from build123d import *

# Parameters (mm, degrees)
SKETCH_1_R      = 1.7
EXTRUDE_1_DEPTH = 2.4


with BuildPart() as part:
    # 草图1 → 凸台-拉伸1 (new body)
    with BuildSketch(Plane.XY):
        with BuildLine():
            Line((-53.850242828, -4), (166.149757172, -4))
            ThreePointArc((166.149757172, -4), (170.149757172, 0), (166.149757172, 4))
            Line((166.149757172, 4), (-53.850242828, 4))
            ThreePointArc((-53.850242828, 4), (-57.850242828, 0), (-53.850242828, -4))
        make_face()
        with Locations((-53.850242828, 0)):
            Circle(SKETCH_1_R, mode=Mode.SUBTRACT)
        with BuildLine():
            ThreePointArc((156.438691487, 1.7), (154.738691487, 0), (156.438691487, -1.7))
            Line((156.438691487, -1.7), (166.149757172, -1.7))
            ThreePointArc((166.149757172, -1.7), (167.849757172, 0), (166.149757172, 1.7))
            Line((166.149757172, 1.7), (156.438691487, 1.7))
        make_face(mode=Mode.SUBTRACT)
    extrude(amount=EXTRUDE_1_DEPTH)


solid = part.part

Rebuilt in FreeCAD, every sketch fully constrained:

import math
import FreeCAD as App
import Part
import Sketcher
from FreeCAD import Vector
Q = App.Units.Quantity

doc = App.newDocument("Part")
body = doc.addObject("PartDesign::Body", "Body")

# Sketch on XY plane
sketch1 = body.newObject("Sketcher::SketchObject", "Sketch")
sketch1.AttachmentSupport = (doc.getObject("XY_Plane"), [""])
sketch1.MapMode = "FlatFace"
sketch1.addGeometry(Part.LineSegment(Vector(-53.850243, -4, 0), Vector(166.149757, -4, 0)), False)
sketch1.addGeometry(Part.ArcOfCircle(Part.Circle(Vector(166.149757, 0, 0), Vector(0, 0, 1), 4), math.radians(-90), math.radians(90)), False)
sketch1.addGeometry(Part.LineSegment(Vector(166.149757, 4, 0), Vector(-53.850243, 4, 0)), False)
sketch1.addGeometry(Part.ArcOfCircle(Part.Circle(Vector(-53.850243, 0, 0), Vector(0, 0, 1), 4), math.radians(90), math.radians(270)), False)
sketch1.addGeometry(Part.Circle(Vector(-53.850243, 0, 0), Vector(0, 0, 1), 1.7), False)
sketch1.addGeometry(Part.ArcOfCircle(Part.Circle(Vector(156.438691, 0, 0), Vector(0, 0, 1), 1.7), math.radians(90), math.radians(270)), False)
sketch1.addGeometry(Part.LineSegment(Vector(156.438691, 1.7, 0), Vector(166.149757, 1.7, 0)), False)
sketch1.addGeometry(Part.ArcOfCircle(Part.Circle(Vector(166.149757, 0, 0), Vector(0, 0, 1), 1.7), math.radians(-90), math.radians(90)), False)
sketch1.addGeometry(Part.LineSegment(Vector(166.149757, -1.7, 0), Vector(156.438691, -1.7, 0)), False)
sketch1.addConstraint(Sketcher.Constraint("Tangent", 0, 2, 1, 1))
sketch1.addConstraint(Sketcher.Constraint("Tangent", 1, 2, 2, 1))
sketch1.addConstraint(Sketcher.Constraint("Tangent", 2, 2, 3, 1))
sketch1.addConstraint(Sketcher.Constraint("Tangent", 3, 2, 0, 1))
sketch1.addConstraint(Sketcher.Constraint("Tangent", 5, 1, 6, 1))
sketch1.addConstraint(Sketcher.Constraint("Tangent", 6, 2, 7, 2))
sketch1.addConstraint(Sketcher.Constraint("Tangent", 7, 1, 8, 1))
sketch1.addConstraint(Sketcher.Constraint("Tangent", 8, 2, 5, 2))
sketch1.addConstraint(Sketcher.Constraint("Horizontal", 0))
sketch1.addConstraint(Sketcher.Constraint("Horizontal", 2))
sketch1.addConstraint(Sketcher.Constraint("Horizontal", 6))
sketch1.addConstraint(Sketcher.Constraint("Horizontal", 8))
sketch1.addConstraint(Sketcher.Constraint("Coincident", 4, 3, 3, 3))
sketch1.addConstraint(Sketcher.Constraint("Coincident", 7, 3, 1, 3))
sketch1.addConstraint(Sketcher.Constraint("Equal", 4, 5))
sketch1.addConstraint(Sketcher.Constraint("PointOnObject", 1, 3, -1))
sketch1.addConstraint(Sketcher.Constraint("Radius", 1, Q("4 mm")))
sketch1.addConstraint(Sketcher.Constraint("Diameter", 4, Q("3.4 mm")))
sketch1.addConstraint(Sketcher.Constraint("DistanceX", 0, 1, 0, 2, Q("220 mm")))
sketch1.addConstraint(Sketcher.Constraint("DistanceX", 6, 1, 6, 2, Q("9.711066 mm")))
sketch1.addConstraint(Sketcher.Constraint("DistanceX", -1, 1, 5, 3, Q("156.438691 mm")))
pad1 = body.newObject("PartDesign::Pad", "Pad")
pad1.Profile = sketch1
pad1.Length = 2.4

doc.recompute()
